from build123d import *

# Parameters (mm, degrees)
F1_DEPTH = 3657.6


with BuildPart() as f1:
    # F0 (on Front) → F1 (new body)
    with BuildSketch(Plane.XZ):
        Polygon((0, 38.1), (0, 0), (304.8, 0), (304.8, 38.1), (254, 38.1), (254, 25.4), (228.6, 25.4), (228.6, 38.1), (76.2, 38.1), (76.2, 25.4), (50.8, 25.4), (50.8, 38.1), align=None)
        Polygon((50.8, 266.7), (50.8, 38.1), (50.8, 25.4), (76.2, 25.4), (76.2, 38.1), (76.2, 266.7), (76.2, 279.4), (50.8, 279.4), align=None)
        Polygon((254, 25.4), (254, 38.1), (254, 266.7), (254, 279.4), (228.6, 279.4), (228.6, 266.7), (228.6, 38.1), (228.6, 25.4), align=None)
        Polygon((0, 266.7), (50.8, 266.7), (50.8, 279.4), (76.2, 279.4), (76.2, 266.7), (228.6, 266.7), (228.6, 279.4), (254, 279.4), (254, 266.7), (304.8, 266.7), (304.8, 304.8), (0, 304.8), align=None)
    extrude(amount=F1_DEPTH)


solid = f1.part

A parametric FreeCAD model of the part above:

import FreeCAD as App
import Part
import Sketcher
from FreeCAD import Vector
Q = App.Units.Quantity

doc = App.newDocument("Part")
body = doc.addObject("PartDesign::Body", "Body")

sketch1 = doc.addObject("Sketcher::SketchObject", "Sketch")
body.addObject(sketch1)
sketch1.AttachmentSupport = (doc.XZ_Plane, [""])
sketch1.MapMode = "FlatFace"
sketch1.addGeometry(Part.LineSegment(Vector(0, 38, 0), Vector(0, 0, 0)), False)
sketch1.addGeometry(Part.LineSegment(Vector(0, 0, 0), Vector(305, 0, 0)), False)
sketch1.addGeometry(Part.LineSegment(Vector(305, 0, 0), Vector(305, 38, 0)), False)
sketch1.addGeometry(Part.LineSegment(Vector(305, 38, 0), Vector(254, 38, 0)), False)
sketch1.addGeometry(Part.LineSegment(Vector(254, 38, 0), Vector(254, 267, 0)), False)
sketch1.addGeometry(Part.LineSegment(Vector(254, 267, 0), Vector(305, 267, 0)), False)
sketch1.addGeometry(Part.LineSegment(Vector(305, 267, 0), Vector(305, 305, 0)), False)
sketch1.addGeometry(Part.LineSegment(Vector(305, 305, 0), Vector(0, 305, 0)), False)
sketch1.addGeometry(Part.LineSegment(Vector(0, 305, 0), Vector(0, 267, 0)), False)
sketch1.addGeometry(Part.LineSegment(Vector(0, 267, 0), Vector(51, 267, 0)), False)
sketch1.addGeometry(Part.LineSegment(Vector(51, 267, 0), Vector(51, 38, 0)), False)
sketch1.addGeometry(Part.LineSegment(Vector(51, 38, 0), Vector(0, 38, 0)), False)
sketch1.addGeometry(Part.LineSegment(Vector(229, 267, 0), Vector(229, 38, 0)), False)
sketch1.addGeometry(Part.LineSegment(Vector(229, 38, 0), Vector(76, 38, 0)), False)
sketch1.addGeometry(Part.LineSegment(Vector(76, 38, 0), Vector(76, 267, 0)), False)
sketch1.addGeometry(Part.LineSegment(Vector(76, 267, 0), Vector(229, 267, 0)), False)
sketch1.addConstraint(Sketcher.Constraint("Coincident", 0, 2, 1, 1))
sketch1.addConstraint(Sketcher.Constraint("Coincident", 1, 2, 2, 1))
sketch1.addConstraint(Sketcher.Constraint("Coincident", 2, 2, 3, 1))
sketch1.addConstraint(Sketcher.Constraint("Coincident", 3, 2, 4, 1))
sketch1.addConstraint(Sketcher.Constraint("Coincident", 4, 2, 5, 1))
sketch1.addConstraint(Sketcher.Constraint("Coincident", 5, 2, 6, 1))
sketch1.addConstraint(Sketcher.Constraint("Coincident", 6, 2, 7, 1))
sketch1.addConstraint(Sketcher.Constraint("Coincident", 7, 2, 8, 1))
sketch1.addConstraint(Sketcher.Constraint("Coincident", 8, 2, 9, 1))
sketch1.addConstraint(Sketcher.Constraint("Coincident", 9, 2, 10, 1))
sketch1.addConstraint(Sketcher.Constraint("Coincident", 10, 2, 11, 1))
sketch1.addConstraint(Sketcher.Constraint("Coincident", 11, 2, 0, 1))
sketch1.addConstraint(Sketcher.Constraint("Coincident", 12, 2, 13, 1))
sketch1.addConstraint(Sketcher.Constraint("Coincident", 13, 2, 14, 1))
sketch1.addConstraint(Sketcher.Constraint("Coincident", 14, 2, 15, 1))
sketch1.addConstraint(Sketcher.Constraint("Coincident", 15, 2, 12, 1))
sketch1.addConstraint(Sketcher.Constraint("Vertical", 0))
sketch1.addConstraint(Sketcher.Constraint("Horizontal", 1))
sketch1.addConstraint(Sketcher.Constraint("Vertical", 2))
sketch1.addConstraint(Sketcher.Constraint("Horizontal", 3))
sketch1.addConstraint(Sketcher.Constraint("Vertical", 4))
sketch1.addConstraint(Sketcher.Constraint("Horizontal", 5))
sketch1.addConstraint(Sketcher.Constraint("Vertical", 6))
sketch1.addConstraint(Sketcher.Constraint("Horizontal", 7))
sketch1.addConstraint(Sketcher.Constraint("Vertical", 8))
sketch1.addConstraint(Sketcher.Constraint("Horizontal", 9))
sketch1.addConstraint(Sketcher.Constraint("Vertical", 10))
sketch1.addConstraint(Sketcher.Constraint("Horizontal", 11))
sketch1.addConstraint(Sketcher.Constraint("Vertical", 12))
sketch1.addConstraint(Sketcher.Constraint("Horizontal", 13))
sketch1.addConstraint(Sketcher.Constraint("Vertical", 14))
sketch1.addConstraint(Sketcher.Constraint("Horizontal", 15))
sketch1.addConstraint(Sketcher.Constraint("Coincident", 0, 2, -1, 1))
sketch1.addConstraint(Sketcher.Constraint("PointOnObject", 7, 2, -2))
sketch1.addConstraint(Sketcher.Constraint("Horizontal", 5, 2, 8, 2))
sketch1.addConstraint(Sketcher.Constraint("Horizontal", 3, 2, 10, 2))
sketch1.addConstraint(Sketcher.Constraint("Horizontal", 11, 2, 12, 2))
sketch1.addConstraint(Sketcher.Constraint("Horizontal", 9, 2, 14, 2))
sketch1.addConstraint(Sketcher.Constraint("Vertical", 2, 2, 5, 2))
sketch1.addConstraint(Sketcher.Constraint("Equal", 5, 9))
sketch1.addConstraint(Sketcher.Constraint("Equal", 2, 6))
sketch1.addConstraint(Sketcher.Constraint("DistanceX", 1, 1, 1, 2, Q("12 in")))
sketch1.addConstraint(Sketcher.Constraint("DistanceX", 3, 2, 3, 1, Q("2 in")))
sketch1.addConstraint(Sketcher.Constraint("DistanceX", 13, 2, 13, 1, Q("6 in")))
sketch1.addConstraint(Sketcher.Constraint("DistanceY", 4, 1, 4, 2, Q("9 in")))
sketch1.addConstraint(Sketcher.Constraint("DistanceY", 0, 2, 0, 1, Q("1.5 in")))
sketch1.addConstraint(Sketcher.Constraint("DistanceX", -1, 1, 12, 2, Q("9 in")))
pad1 = doc.addObject("PartDesign::Pad", "Pad")
body.addObject(pad1)
pad1.Profile = sketch1
pad1.Length = Q("144 in")

doc.recompute()
